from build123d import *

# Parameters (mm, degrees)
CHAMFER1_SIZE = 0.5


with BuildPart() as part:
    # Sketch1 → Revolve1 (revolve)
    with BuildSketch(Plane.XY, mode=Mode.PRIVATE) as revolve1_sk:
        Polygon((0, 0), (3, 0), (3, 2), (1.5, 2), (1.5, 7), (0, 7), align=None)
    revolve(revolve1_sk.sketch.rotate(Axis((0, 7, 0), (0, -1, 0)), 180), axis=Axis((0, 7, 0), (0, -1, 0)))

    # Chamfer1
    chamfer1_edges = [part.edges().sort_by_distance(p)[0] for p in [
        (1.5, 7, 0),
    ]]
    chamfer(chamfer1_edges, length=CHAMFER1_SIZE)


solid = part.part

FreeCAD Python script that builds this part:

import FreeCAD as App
import Part
import Sketcher
from FreeCAD import Vector
Q = App.Units.Quantity


def edges_at(feature, points):
    """Names of the edges that pass closest to the given points."""
    edges = feature.Shape.Edges
    near = lambda p: min(range(len(edges)), key=lambda i: edges[i].distToShape(Part.Vertex(*p))[0])
    return sorted({f"Edge{near(p) + 1}" for p in points})

doc = App.newDocument("Part")
body = doc.addObject("PartDesign::Body", "Body")

# Sketch on XY plane
sketch1 = body.newObject("Sketcher::SketchObject", "Sketch")
sketch1.AttachmentSupport = (doc.getObject("XY_Plane"), [""])
sketch1.MapMode = "FlatFace"
sketch1.addGeometry(Part.LineSegment(Vector(0, 0, 0), Vector(3, 0, 0)), False)
sketch1.addGeometry(Part.LineSegment(Vector(3, 0, 0), Vector(3, 2, 0)), False)
sketch1.addGeometry(Part.LineSegment(Vector(3, 2, 0), Vector(1.5, 2, 0)), False)
sketch1.addGeometry(Part.LineSegment(Vector(1.5, 2, 0), Vector(1.5, 7, 0)), False)
sketch1.addGeometry(Part.LineSegment(Vector(1.5, 7, 0), Vector(0, 7, 0)), False)
sketch1.addGeometry(Part.LineSegment(Vector(0, 7, 0), Vector(0, 0, 0)), False)
sketch1.addConstraint(Sketcher.Constraint("Coincident", 0, 2, 1, 1))
sketch1.addConstraint(Sketcher.Constraint("Coincident", 1, 2, 2, 1))
sketch1.addConstraint(Sketcher.Constraint("Coincident", 2, 2, 3, 1))
sketch1.addConstraint(Sketcher.Constraint("Coincident", 3, 2, 4, 1))
sketch1.addConstraint(Sketcher.Constraint("Coincident", 4, 2, 5, 1))
sketch1.addConstraint(Sketcher.Constraint("Coincident", 5, 2, 0, 1))
sketch1.addConstraint(Sketcher.Constraint("Horizontal", 0))
sketch1.addConstraint(Sketcher.Constraint("Vertical", 1))
sketch1.addConstraint(Sketcher.Constraint("Horizontal", 2))
sketch1.addConstraint(Sketcher.Constraint("Vertical", 3))
sketch1.addConstraint(Sketcher.Constraint("Horizontal", 4))
sketch1.addConstraint(Sketcher.Constraint("Vertical", 5))
sketch1.addConstraint(Sketcher.Constraint("Coincident", 5, 2, -1, 1))
sketch1.addConstraint(Sketcher.Constraint("Equal", 2, 4))
sketch1.addConstraint(Sketcher.Constraint("DistanceX", 0, 1, 0, 2, Q("3 mm")))
sketch1.addConstraint(Sketcher.Constraint("DistanceY", 1, 1, 1, 2, Q("2 mm")))
sketch1.addConstraint(Sketcher.Constraint("DistanceY", 3, 1, 3, 2, Q("5 mm")))
revolution = body.newObject("PartDesign::Revolution", "Revolution")
revolution.Profile = sketch1
revolution.ReferenceAxis = (sketch1, ["V_Axis"])
revolution.Angle = 360
doc.recompute()

chamfer = body.newObject("PartDesign::Chamfer", "Chamfer")
chamfer.Base = (revolution, edges_at(revolution, [(1.5, 7, 0)]))
chamfer.Size = 0.5

doc.recompute()
